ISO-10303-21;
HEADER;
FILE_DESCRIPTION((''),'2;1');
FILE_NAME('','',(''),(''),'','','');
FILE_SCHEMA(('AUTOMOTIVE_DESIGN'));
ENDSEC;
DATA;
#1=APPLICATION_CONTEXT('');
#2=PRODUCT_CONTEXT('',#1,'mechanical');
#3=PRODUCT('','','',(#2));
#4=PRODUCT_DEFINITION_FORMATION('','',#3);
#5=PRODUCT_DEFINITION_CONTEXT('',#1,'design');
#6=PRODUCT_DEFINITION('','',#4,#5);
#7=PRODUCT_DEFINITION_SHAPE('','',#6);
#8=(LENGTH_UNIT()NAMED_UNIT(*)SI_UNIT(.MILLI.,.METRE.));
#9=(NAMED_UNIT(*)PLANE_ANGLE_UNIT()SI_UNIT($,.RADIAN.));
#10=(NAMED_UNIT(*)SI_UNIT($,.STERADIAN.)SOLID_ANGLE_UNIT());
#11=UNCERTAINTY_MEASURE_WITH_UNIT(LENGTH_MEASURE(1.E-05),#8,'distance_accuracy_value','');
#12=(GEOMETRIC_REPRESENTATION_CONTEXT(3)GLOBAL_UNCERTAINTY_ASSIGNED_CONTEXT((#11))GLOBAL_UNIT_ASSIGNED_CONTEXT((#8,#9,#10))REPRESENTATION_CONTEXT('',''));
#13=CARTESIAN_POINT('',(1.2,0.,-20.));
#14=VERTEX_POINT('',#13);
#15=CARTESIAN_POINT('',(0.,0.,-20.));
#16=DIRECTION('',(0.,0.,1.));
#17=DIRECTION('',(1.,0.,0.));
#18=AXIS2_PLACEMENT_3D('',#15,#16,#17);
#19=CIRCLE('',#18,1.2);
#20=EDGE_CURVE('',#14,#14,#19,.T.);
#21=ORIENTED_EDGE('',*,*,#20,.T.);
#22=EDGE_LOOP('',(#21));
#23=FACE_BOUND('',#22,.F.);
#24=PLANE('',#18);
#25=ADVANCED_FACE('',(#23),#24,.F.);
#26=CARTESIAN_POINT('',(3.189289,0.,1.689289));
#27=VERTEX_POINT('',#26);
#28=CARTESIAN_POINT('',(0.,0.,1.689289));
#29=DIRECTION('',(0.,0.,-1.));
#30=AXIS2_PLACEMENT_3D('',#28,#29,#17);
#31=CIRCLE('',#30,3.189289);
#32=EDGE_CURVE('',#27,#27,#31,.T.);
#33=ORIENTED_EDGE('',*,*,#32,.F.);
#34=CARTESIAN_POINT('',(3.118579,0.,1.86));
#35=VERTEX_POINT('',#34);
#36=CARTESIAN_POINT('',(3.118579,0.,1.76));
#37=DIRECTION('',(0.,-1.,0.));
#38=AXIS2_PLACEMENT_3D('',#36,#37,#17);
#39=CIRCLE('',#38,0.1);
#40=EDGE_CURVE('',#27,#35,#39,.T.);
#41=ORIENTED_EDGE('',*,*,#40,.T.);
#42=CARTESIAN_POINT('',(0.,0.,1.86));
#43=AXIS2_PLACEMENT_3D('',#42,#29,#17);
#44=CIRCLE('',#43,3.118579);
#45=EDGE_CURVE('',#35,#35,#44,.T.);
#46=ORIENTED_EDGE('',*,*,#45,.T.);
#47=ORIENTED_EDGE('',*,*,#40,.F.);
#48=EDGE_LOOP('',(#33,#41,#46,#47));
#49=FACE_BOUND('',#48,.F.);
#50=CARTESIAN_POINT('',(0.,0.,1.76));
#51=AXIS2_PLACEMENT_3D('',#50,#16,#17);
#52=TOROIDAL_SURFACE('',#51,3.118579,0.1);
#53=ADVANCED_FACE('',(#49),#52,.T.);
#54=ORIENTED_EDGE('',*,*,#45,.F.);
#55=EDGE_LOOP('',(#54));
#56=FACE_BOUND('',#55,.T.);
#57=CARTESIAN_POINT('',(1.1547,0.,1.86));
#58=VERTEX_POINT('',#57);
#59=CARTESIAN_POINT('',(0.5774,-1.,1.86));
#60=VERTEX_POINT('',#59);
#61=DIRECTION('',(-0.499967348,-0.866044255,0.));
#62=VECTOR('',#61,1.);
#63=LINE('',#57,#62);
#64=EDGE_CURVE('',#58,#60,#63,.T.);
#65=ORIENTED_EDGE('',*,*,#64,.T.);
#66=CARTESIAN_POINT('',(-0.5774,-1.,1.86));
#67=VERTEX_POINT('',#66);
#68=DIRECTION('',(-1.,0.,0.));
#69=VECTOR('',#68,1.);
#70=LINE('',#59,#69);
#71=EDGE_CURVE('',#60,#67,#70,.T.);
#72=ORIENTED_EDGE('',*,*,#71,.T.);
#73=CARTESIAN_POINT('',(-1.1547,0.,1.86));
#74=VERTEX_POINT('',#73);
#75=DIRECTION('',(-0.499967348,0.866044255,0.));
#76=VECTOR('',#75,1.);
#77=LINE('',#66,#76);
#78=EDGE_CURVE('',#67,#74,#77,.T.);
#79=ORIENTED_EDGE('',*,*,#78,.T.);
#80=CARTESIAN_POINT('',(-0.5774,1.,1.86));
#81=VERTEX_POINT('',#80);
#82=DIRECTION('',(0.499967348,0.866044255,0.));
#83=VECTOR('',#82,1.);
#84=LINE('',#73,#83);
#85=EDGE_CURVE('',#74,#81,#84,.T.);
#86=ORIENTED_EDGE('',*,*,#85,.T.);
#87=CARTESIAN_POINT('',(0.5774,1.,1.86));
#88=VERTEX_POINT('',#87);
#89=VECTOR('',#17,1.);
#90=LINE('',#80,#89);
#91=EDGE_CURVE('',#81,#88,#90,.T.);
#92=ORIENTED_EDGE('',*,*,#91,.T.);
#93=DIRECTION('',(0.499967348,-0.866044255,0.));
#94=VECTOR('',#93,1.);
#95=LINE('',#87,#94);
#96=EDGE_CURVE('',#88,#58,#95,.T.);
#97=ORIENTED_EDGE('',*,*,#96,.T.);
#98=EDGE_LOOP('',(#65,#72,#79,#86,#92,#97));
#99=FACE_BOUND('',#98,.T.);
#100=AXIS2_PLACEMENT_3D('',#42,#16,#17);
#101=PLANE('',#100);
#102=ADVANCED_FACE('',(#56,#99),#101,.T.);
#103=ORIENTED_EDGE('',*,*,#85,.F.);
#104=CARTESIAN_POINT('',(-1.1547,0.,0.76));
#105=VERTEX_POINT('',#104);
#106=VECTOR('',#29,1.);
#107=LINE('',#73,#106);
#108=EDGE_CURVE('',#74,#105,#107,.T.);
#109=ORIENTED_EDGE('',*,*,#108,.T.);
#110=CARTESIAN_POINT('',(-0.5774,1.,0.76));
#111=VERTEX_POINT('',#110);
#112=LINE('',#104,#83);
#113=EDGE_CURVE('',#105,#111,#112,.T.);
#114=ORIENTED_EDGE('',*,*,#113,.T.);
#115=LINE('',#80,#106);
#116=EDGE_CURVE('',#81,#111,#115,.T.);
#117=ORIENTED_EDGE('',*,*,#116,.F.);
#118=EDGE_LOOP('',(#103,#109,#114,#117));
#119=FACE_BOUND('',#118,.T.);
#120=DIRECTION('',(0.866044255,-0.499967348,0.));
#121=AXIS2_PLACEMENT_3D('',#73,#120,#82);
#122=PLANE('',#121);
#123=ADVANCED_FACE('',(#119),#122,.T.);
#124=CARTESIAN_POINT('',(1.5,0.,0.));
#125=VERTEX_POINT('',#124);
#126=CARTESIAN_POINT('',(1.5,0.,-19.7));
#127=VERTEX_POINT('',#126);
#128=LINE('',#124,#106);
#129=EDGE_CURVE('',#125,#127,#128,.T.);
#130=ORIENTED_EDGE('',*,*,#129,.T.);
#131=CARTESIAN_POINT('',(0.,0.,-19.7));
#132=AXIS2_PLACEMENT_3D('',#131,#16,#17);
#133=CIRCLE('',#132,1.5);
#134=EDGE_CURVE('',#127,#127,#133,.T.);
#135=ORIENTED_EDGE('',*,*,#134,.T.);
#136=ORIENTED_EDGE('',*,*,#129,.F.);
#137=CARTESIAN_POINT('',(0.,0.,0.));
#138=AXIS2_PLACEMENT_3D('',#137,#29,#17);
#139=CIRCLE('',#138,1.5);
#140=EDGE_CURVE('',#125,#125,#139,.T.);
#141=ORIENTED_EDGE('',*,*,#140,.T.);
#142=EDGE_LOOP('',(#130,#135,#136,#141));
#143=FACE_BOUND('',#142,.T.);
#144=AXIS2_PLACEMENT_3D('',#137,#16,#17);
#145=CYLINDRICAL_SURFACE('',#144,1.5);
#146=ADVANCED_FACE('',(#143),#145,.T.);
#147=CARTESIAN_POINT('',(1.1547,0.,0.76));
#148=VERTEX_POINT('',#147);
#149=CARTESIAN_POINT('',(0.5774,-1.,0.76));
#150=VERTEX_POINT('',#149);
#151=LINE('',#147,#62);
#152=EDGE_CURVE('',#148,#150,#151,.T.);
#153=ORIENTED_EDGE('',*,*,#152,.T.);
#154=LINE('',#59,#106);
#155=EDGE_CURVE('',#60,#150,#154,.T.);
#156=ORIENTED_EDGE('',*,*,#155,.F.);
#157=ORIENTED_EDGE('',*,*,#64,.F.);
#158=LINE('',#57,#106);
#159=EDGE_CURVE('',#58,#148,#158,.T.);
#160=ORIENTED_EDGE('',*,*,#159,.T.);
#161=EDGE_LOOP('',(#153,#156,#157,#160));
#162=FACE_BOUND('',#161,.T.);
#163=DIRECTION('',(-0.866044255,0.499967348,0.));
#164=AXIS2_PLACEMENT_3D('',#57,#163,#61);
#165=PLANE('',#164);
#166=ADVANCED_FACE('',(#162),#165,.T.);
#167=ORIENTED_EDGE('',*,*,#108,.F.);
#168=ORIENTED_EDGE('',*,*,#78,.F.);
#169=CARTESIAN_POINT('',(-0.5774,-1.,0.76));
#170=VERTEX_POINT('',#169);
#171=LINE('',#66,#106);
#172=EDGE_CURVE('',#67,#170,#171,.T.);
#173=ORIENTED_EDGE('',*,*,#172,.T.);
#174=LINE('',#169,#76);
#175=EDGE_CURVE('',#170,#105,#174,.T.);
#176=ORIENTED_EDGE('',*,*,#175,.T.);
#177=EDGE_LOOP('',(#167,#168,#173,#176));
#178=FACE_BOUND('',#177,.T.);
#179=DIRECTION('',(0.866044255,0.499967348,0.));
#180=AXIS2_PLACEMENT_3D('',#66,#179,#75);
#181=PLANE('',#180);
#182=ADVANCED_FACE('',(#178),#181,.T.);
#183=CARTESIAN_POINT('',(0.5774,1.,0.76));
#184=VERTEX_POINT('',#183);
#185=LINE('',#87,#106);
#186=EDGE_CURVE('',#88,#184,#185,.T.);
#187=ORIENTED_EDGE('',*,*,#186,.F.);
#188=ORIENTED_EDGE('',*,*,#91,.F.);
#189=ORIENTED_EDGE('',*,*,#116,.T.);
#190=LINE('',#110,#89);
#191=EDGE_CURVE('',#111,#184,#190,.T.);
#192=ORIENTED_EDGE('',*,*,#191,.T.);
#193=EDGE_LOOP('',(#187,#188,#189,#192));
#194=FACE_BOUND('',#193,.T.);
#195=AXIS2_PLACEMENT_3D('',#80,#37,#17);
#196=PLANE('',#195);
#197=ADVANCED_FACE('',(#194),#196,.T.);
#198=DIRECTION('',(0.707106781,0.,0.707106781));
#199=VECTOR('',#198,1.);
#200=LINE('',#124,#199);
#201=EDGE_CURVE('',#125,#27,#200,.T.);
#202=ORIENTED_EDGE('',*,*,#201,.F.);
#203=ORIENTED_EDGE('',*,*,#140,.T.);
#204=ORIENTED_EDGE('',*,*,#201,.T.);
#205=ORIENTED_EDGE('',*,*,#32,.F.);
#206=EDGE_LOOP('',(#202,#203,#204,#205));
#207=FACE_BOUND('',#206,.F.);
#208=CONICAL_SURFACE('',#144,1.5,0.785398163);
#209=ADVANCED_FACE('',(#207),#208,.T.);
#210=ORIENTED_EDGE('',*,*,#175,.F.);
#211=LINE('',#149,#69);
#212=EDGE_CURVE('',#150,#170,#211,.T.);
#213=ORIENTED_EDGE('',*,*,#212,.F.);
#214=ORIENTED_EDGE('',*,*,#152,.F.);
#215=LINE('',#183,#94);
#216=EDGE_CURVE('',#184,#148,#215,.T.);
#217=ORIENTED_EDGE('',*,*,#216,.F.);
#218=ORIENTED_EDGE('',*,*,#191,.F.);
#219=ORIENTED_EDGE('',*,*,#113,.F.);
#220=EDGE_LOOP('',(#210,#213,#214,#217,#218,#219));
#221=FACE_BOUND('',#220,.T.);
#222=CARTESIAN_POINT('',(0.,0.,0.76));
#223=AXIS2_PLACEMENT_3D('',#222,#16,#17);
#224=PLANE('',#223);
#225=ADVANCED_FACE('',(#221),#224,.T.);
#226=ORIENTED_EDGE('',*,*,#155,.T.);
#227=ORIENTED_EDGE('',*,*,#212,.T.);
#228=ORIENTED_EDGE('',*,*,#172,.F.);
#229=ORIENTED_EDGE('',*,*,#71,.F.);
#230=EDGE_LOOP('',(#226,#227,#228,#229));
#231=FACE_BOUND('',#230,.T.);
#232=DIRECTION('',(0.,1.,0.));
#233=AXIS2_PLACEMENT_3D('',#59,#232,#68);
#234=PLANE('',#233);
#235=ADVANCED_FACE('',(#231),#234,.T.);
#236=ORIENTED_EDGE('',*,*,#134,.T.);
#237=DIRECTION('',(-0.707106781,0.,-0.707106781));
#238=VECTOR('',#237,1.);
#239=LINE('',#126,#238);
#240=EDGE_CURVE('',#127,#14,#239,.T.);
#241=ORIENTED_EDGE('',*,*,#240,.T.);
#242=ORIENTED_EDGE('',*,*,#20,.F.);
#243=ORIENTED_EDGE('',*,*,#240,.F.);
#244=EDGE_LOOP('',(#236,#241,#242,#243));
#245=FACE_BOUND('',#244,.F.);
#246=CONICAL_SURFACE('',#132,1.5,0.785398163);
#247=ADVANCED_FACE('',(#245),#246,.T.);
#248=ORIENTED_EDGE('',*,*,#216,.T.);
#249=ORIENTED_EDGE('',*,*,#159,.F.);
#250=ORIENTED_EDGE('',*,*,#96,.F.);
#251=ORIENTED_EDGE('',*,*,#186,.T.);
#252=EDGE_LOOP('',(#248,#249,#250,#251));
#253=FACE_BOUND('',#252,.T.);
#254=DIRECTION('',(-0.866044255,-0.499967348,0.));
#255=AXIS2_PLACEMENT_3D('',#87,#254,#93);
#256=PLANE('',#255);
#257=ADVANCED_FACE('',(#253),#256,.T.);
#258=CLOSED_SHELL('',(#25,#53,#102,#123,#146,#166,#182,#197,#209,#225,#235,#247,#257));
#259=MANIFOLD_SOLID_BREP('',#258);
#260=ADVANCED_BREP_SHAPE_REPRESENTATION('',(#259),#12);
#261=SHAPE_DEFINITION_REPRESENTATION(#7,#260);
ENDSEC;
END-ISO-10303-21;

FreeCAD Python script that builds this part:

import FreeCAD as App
import Part
import Sketcher

V = App.Vector


def edges_at(feature, points):
    """Names of the edges that pass closest to the given points."""
    edges = feature.Shape.Edges
    near = lambda p: min(range(len(edges)), key=lambda i: edges[i].distToShape(Part.Vertex(*p))[0])
    return sorted({f"Edge{near(p) + 1}" for p in points})

doc = App.newDocument("Part")
body = doc.addObject("PartDesign::Body", "Body")

sketch1 = body.newObject("Sketcher::SketchObject", "Sketch")
sketch1.AttachmentSupport = (doc.getObject("XY_Plane"), [""])
sketch1.MapMode = "FlatFace"
sketch1.addGeometry(Part.Circle(V(0, 0, 0), V(0, 0, 1), 1.5), False)
sketch1.addConstraint([
    Sketcher.Constraint("Coincident", 0, 3, -1, 1),
    Sketcher.Constraint("Diameter", 0, 3.0),
])
pad1 = body.newObject("PartDesign::Pad", "Pad")
pad1.Profile = sketch1
pad1.Length = 20
pad1.Reversed = True

sketch2 = body.newObject("Sketcher::SketchObject", "Sketch001")
sketch2.AttachmentSupport = (doc.getObject("XY_Plane"), [""])
sketch2.MapMode = "FlatFace"
sketch2.addGeometry(Part.Circle(V(0, 0, 0), V(0, 0, 1), 1.5), False)
sketch2.addConstraint([
    Sketcher.Constraint("Coincident", 0, 3, -1, 1),
    Sketcher.Constraint("Diameter", 0, 3.0),
])
pad2 = body.newObject("PartDesign::Pad", "Pad001")
pad2.Profile = sketch2
pad2.Length = 1.86
pad2.TaperAngle = 45

sketch3 = body.newObject("Sketcher::SketchObject", "Sketch002")
sketch3.AttachmentSupport = (doc.getObject("XY_Plane"), [""])
sketch3.MapMode = "FlatFace"
sketch3.AttachmentOffset = App.Placement(V(0, 0, 1.86), App.Rotation())
sketch3.addGeometry([
    Part.LineSegment(V(1.1547, 0, 0), V(0.5774, 1, 0)),
    Part.LineSegment(V(0.5774, 1, 0), V(-0.5774, 1, 0)),
    Part.LineSegment(V(-0.5774, 1, 0), V(-1.1547, 0, 0)),
    Part.LineSegment(V(-1.1547, 0, 0), V(-0.5774, -1, 0)),
    Part.LineSegment(V(-0.5774, -1, 0), V(0.5774, -1, 0)),
    Part.LineSegment(V(0.5774, -1, 0), V(1.1547, 0, 0)),
], False)
sketch3.addConstraint([
    Sketcher.Constraint("Coincident", 0, 2, 1, 1),
    Sketcher.Constraint("Coincident", 1, 2, 2, 1),
    Sketcher.Constraint("Coincident", 2, 2, 3, 1),
    Sketcher.Constraint("Coincident", 3, 2, 4, 1),
    Sketcher.Constraint("Coincident", 4, 2, 5, 1),
    Sketcher.Constraint("Coincident", 5, 2, 0, 1),
    Sketcher.Constraint("Horizontal", 1),
    Sketcher.Constraint("Horizontal", 4),
    Sketcher.Constraint("Symmetric", 0, 2, 3, 2, -1, 1),
    Sketcher.Constraint("Symmetric", 2, 2, 5, 2, -1, 1),
    Sketcher.Constraint("PointOnObject", 2, 2, -1),
    Sketcher.Constraint("Parallel", 2, 5),
    Sketcher.Constraint("Vertical", 1, 2, 3, 2),
    Sketcher.Constraint("DistanceY", 3, 2, 1, 2, 2.0),
    Sketcher.Constraint("DistanceX", 1, 2, 1, 1, 1.1548),
    Sketcher.Constraint("DistanceX", 2, 2, 0, 2, 1.732),
])
pocket1 = body.newObject("PartDesign::Pocket", "Pocket")
pocket1.Profile = sketch3
pocket1.Length = 1.1
doc.recompute()

chamfer = body.newObject("PartDesign::Chamfer", "Chamfer")
chamfer.Base = (pocket1, edges_at(pocket1, [(-1.5, 0, -20)]))
chamfer.Size = 0.3
doc.recompute()

fillet = body.newObject("PartDesign::Fillet", "Fillet")
fillet.Base = (chamfer, edges_at(chamfer, [(-3.36, 0, 1.86)]))
fillet.Radius = 0.1

doc.recompute()
